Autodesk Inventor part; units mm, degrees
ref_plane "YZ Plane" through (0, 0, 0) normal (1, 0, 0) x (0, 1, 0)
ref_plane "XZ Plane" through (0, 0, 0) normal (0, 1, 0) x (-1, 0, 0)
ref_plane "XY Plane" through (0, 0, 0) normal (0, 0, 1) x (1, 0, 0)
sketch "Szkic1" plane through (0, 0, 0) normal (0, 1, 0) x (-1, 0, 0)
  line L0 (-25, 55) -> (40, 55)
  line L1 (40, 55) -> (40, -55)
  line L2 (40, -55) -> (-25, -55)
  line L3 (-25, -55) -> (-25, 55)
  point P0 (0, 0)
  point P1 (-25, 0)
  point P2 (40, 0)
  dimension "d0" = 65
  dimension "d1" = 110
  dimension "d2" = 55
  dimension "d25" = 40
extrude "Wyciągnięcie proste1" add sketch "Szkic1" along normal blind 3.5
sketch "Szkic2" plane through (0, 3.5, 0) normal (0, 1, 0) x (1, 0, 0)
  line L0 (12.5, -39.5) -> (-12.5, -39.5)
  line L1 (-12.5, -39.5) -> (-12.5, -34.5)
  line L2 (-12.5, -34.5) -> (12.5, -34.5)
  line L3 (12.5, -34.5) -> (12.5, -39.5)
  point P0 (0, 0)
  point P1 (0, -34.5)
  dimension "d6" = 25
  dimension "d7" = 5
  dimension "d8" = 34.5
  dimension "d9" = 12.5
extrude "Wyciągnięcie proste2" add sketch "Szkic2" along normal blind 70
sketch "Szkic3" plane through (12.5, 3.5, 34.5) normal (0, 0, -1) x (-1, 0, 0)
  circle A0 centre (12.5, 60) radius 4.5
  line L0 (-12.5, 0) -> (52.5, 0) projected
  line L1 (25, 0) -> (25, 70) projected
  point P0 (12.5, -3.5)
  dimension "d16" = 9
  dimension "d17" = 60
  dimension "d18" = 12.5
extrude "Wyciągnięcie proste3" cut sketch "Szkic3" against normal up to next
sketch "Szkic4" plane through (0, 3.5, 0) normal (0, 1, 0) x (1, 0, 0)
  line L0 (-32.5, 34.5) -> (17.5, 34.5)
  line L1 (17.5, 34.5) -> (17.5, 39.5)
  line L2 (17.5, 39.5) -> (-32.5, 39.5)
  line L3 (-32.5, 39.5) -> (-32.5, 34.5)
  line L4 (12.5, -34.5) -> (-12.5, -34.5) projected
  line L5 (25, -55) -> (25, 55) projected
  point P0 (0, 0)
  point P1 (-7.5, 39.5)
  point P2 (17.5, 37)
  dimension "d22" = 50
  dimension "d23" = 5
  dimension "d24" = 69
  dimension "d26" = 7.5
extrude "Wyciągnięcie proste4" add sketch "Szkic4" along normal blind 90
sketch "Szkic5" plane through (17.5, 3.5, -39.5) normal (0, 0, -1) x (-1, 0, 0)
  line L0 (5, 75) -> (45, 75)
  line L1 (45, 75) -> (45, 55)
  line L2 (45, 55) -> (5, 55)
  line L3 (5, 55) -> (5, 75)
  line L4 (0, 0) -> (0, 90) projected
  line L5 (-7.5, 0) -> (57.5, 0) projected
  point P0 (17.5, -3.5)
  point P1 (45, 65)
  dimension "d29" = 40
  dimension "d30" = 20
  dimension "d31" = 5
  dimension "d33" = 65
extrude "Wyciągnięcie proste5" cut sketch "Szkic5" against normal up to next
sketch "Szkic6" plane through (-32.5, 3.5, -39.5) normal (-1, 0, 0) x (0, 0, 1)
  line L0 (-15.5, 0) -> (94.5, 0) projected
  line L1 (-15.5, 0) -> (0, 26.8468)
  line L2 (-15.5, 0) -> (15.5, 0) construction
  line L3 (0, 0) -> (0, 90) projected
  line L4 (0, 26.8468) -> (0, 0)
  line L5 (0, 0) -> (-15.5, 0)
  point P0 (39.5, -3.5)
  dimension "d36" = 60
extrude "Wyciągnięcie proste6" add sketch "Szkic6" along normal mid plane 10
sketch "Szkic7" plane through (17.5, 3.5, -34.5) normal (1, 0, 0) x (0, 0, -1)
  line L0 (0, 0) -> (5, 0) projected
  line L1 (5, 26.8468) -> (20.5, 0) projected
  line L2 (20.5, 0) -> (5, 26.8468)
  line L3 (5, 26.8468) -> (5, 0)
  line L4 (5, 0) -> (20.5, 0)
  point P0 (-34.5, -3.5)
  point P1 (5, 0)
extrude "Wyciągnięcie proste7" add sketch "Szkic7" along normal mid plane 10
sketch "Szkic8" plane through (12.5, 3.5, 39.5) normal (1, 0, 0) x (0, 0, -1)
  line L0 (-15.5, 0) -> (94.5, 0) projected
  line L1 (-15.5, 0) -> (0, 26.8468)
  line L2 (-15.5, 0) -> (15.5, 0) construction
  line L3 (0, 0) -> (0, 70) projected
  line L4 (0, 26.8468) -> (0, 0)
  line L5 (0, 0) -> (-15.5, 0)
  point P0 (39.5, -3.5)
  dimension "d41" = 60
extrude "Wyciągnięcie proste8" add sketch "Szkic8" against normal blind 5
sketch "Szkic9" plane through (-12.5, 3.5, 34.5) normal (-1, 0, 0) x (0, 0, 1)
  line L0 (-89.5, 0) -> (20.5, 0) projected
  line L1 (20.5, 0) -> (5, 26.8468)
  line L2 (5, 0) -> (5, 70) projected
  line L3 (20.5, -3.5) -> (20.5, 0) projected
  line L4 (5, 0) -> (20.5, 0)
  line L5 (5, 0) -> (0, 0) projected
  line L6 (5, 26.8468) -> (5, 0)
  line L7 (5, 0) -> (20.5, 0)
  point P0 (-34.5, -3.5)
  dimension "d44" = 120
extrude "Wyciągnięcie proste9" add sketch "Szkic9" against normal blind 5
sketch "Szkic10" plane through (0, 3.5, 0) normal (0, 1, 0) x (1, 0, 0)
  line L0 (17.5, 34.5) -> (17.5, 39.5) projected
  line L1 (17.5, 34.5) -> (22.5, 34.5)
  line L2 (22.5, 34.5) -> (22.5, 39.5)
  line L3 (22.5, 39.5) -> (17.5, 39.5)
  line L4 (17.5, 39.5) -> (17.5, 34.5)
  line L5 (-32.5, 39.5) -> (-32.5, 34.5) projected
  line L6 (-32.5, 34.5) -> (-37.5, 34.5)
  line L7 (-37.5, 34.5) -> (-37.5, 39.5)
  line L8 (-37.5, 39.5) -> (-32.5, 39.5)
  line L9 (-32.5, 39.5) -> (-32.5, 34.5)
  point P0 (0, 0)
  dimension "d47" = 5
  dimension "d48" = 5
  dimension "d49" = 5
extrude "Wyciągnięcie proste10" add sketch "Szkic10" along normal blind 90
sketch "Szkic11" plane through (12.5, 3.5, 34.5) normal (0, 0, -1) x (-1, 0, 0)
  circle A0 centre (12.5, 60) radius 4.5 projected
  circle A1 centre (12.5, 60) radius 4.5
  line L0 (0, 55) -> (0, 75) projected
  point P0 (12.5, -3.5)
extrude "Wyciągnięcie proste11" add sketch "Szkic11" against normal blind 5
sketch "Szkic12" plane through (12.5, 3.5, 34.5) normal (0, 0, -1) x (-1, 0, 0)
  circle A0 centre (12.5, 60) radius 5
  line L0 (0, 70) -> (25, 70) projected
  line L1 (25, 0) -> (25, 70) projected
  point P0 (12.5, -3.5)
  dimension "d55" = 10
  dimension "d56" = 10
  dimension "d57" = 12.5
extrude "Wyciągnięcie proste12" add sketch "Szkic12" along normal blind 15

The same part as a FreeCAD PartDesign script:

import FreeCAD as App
import Part
import Sketcher

V = App.Vector
Q = App.Units.Quantity


def add_polygon(sketch, points):
    """Adds a closed chain of lines whose ends are joined by coincident constraints."""
    first, n = sketch.GeometryCount, len(points)
    for a, b in zip(points, points[1:] + points[:1]):
        sketch.addGeometry(Part.LineSegment(App.Vector(*a, 0), App.Vector(*b, 0)), False)
    for i in range(n):
        sketch.addConstraint(Sketcher.Constraint("Coincident", first + i, 2, first + (i + 1) % n, 1))

doc = App.newDocument("Part")
body = doc.addObject("PartDesign::Body", "Body")

# Sketch on XZ plane
sketch1 = doc.addObject("Sketcher::SketchObject", "Sketch")
body.addObject(sketch1)
sketch1.AttachmentSupport = (doc.XZ_Plane, [""])
sketch1.MapMode = "FlatFace"
add_polygon(sketch1, [(-40, 55), (25, 55), (25, -55), (-40, -55)])  # lines 0-3
sketch1.addConstraint([
    Sketcher.Constraint("Horizontal", 0),
    Sketcher.Constraint("Vertical", 1),
    Sketcher.Constraint("Horizontal", 2),
    Sketcher.Constraint("Vertical", 3),
    Sketcher.Constraint("DistanceX", 0, 1, 0, 2, 65.0),
    Sketcher.Constraint("DistanceY", 1, 2, 1, 1, 110.0),
    Sketcher.Constraint("DistanceY", -1, 1, 0, 2, 55.0),
    Sketcher.Constraint("DistanceX", 2, 2, -1, 1, 40.0),
])
pad1 = doc.addObject("PartDesign::Pad", "Pad")
body.addObject(pad1)
pad1.Profile = sketch1
pad1.Length = 3.5
pad1.Reversed = True

# Sketch on XZ plane
sketch2 = doc.addObject("Sketcher::SketchObject", "Sketch001")
body.addObject(sketch2)
sketch2.AttachmentSupport = (doc.XZ_Plane, [""])
sketch2.MapMode = "FlatFace"
sketch2.AttachmentOffset = App.Placement(V(0, 0, -3.5), App.Rotation())
add_polygon(sketch2, [(-12, 40), (12, 40), (12, 34), (-12, 34)])  # lines 0-3
sketch2.addConstraint([
    Sketcher.Constraint("Horizontal", 0),
    Sketcher.Constraint("Vertical", 1),
    Sketcher.Constraint("Horizontal", 2),
    Sketcher.Constraint("Vertical", 3),
    Sketcher.Constraint("DistanceX", 0, 1, 0, 2, 25.0),
    Sketcher.Constraint("DistanceY", 1, 2, 1, 1, 5.0),
    Sketcher.Constraint("DistanceX", -1, 1, 0, 2, 12.5),
    Sketcher.Constraint("DistanceY", -1, 1, 1, 2, 34.5),
])
pad2 = doc.addObject("PartDesign::Pad", "Pad001")
body.addObject(pad2)
pad2.Profile = sketch2
pad2.Length = 70
pad2.Reversed = True

# Sketch on XY plane
sketch3 = doc.addObject("Sketcher::SketchObject", "Sketch002")
body.addObject(sketch3)
sketch3.AttachmentSupport = (doc.XY_Plane, [""])
sketch3.MapMode = "FlatFace"
sketch3.AttachmentOffset = App.Placement(V(0, 0, 34.5), App.Rotation())
sketch3.addGeometry(Part.Circle(V(0, 63.5, 0), V(0, 0, 1), 4.5), False)
sketch3.addConstraint([
    Sketcher.Constraint("PointOnObject", 0, 3, -2),
    Sketcher.Constraint("Diameter", 0, 9.0),
    Sketcher.Constraint("DistanceY", -1, 1, 0, 3, 63.5),
])
pocket1 = doc.addObject("PartDesign::Pocket", "Pocket")
body.addObject(pocket1)
pocket1.Profile = sketch3
pocket1.Type = "UpToFirst"
pocket1.Reversed = True

# Sketch on XZ plane
sketch4 = doc.addObject("Sketcher::SketchObject", "Sketch003")
body.addObject(sketch4)
sketch4.AttachmentSupport = (doc.XZ_Plane, [""])
sketch4.MapMode = "FlatFace"
sketch4.AttachmentOffset = App.Placement(V(0, 0, -3.5), App.Rotation())
add_polygon(sketch4, [(-32, -40), (-32, -34), (18, -34), (18, -40)])  # lines 0-3
sketch4.addConstraint([
    Sketcher.Constraint("Vertical", 0),
    Sketcher.Constraint("Horizontal", 1),
    Sketcher.Constraint("Vertical", 2),
    Sketcher.Constraint("Horizontal", 3),
    Sketcher.Constraint("DistanceX", 1, 1, 1, 2, 50.0),
    Sketcher.Constraint("DistanceY", 0, 1, 0, 2, 5.0),
    Sketcher.Constraint("DistanceX", 0, 2, -1, 1, 32.5),
    Sketcher.Constraint("DistanceY", 0, 2, -1, 1, 34.5),
])
pad3 = doc.addObject("PartDesign::Pad", "Pad002")
body.addObject(pad3)
pad3.Profile = sketch4
pad3.Length = 90
pad3.Reversed = True

# Sketch on XY plane
sketch5 = doc.addObject("Sketcher::SketchObject", "Sketch004")
body.addObject(sketch5)
sketch5.AttachmentSupport = (doc.XY_Plane, [""])
sketch5.MapMode = "FlatFace"
sketch5.AttachmentOffset = App.Placement(V(0, 0, -39.5), App.Rotation())
add_polygon(sketch5, [(-28, 78), (12, 78), (12, 58), (-28, 58)])  # lines 0-3
sketch5.addConstraint([
    Sketcher.Constraint("Horizontal", 0),
    Sketcher.Constraint("Vertical", 1),
    Sketcher.Constraint("Horizontal", 2),
    Sketcher.Constraint("Vertical", 3),
    Sketcher.Constraint("DistanceX", 0, 1, 0, 2, 40.0),
    Sketcher.Constraint("DistanceY", 1, 2, 1, 1, 20.0),
    Sketcher.Constraint("DistanceX", -1, 1, 0, 2, 12.5),
    Sketcher.Constraint("DistanceY", -1, 1, 0, 2, 78.5),
])
pocket2 = doc.addObject("PartDesign::Pocket", "Pocket001")
body.addObject(pocket2)
pocket2.Profile = sketch5
pocket2.Type = "UpToFirst"
pocket2.Reversed = True

# Sketch on YZ plane
sketch6 = doc.addObject("Sketcher::SketchObject", "Sketch005")
body.addObject(sketch6)
sketch6.AttachmentSupport = (doc.YZ_Plane, [""])
sketch6.MapMode = "FlatFace"
sketch6.AttachmentOffset = App.Placement(V(0, 0, -32.5), App.Rotation())
add_polygon(sketch6, [(30, -40), (4, -55), (4, -40)])  # lines 0-2
sketch6.addConstraint([
    Sketcher.Constraint("Vertical", 1),
    Sketcher.Constraint("Horizontal", 2),
    Sketcher.Constraint("Angle", 0, Q("-150 deg")),
    Sketcher.Constraint("Distance", 0, 31.0),
    Sketcher.Constraint("DistanceY", 0, 2, -1, 1, 55.0),
    Sketcher.Constraint("DistanceX", -1, 1, 0, 2, 3.5),
])
pad4 = doc.addObject("PartDesign::Pad", "Pad003")
body.addObject(pad4)
pad4.Profile = sketch6
pad4.Length = 10
pad4.Midplane = True

# Sketch on YZ plane
sketch7 = doc.addObject("Sketcher::SketchObject", "Sketch006")
body.addObject(sketch7)
sketch7.AttachmentSupport = (doc.YZ_Plane, [""])
sketch7.MapMode = "FlatFace"
sketch7.AttachmentOffset = App.Placement(V(0, 0, 17.5), App.Rotation())
add_polygon(sketch7, [(4, -55), (30, -40), (4, -40)])  # lines 0-2
sketch7.addConstraint([
    Sketcher.Constraint("Horizontal", 1),
    Sketcher.Constraint("Vertical", 2),
    Sketcher.Constraint("Angle", 0, Q("30 deg")),
    Sketcher.Constraint("Distance", 0, 31.0),
    Sketcher.Constraint("DistanceY", 2, 2, -1, 1, 55.0),
    Sketcher.Constraint("DistanceX", -1, 1, 1, 2, 3.5),
])
pad5 = doc.addObject("PartDesign::Pad", "Pad004")
body.addObject(pad5)
pad5.Profile = sketch7
pad5.Length = 10
pad5.Midplane = True

# Sketch on YZ plane
sketch8 = doc.addObject("Sketcher::SketchObject", "Sketch007")
body.addObject(sketch8)
sketch8.AttachmentSupport = (doc.YZ_Plane, [""])
sketch8.MapMode = "FlatFace"
sketch8.AttachmentOffset = App.Placement(V(0, 0, 12.5), App.Rotation())
add_polygon(sketch8, [(30, 40), (4, 55), (4, 40)])  # lines 0-2
sketch8.addConstraint([
    Sketcher.Constraint("Vertical", 1),
    Sketcher.Constraint("Horizontal", 2),
    Sketcher.Constraint("Angle", 0, Q("150 deg")),
    Sketcher.Constraint("Distance", 0, 31.0),
    Sketcher.Constraint("DistanceY", -1, 1, 0, 2, 55.0),
    Sketcher.Constraint("DistanceX", -1, 1, 0, 2, 3.5),
])
pad6 = doc.addObject("PartDesign::Pad", "Pad005")
body.addObject(pad6)
pad6.Profile = sketch8
pad6.Length = 5
pad6.Reversed = True

# Sketch on YZ plane
sketch9 = doc.addObject("Sketcher::SketchObject", "Sketch008")
body.addObject(sketch9)
sketch9.AttachmentSupport = (doc.YZ_Plane, [""])
sketch9.MapMode = "FlatFace"
sketch9.AttachmentOffset = App.Placement(V(0, 0, -12.5), App.Rotation())
add_polygon(sketch9, [(30, 40), (4, 40), (4, 55)])  # lines 0-2
sketch9.addConstraint([
    Sketcher.Constraint("Horizontal", 0),
    Sketcher.Constraint("Vertical", 1),
    Sketcher.Constraint("Angle", 2, Q("-30 deg")),
    Sketcher.Constraint("Distance", 2, 31.0),
    Sketcher.Constraint("DistanceY", -1, 1, 1, 2, 55.0),
    Sketcher.Constraint("DistanceX", -1, 1, 0, 2, 3.5),
])
pad7 = doc.addObject("PartDesign::Pad", "Pad006")
body.addObject(pad7)
pad7.Profile = sketch9
pad7.Length = 5

# Sketch on XZ plane
sketch10 = doc.addObject("Sketcher::SketchObject", "Sketch009")
body.addObject(sketch10)
sketch10.AttachmentSupport = (doc.XZ_Plane, [""])
sketch10.MapMode = "FlatFace"
sketch10.AttachmentOffset = App.Placement(V(0, 0, -3.5), App.Rotation())
add_polygon(sketch10, [(18, -40), (18, -34), (22, -34), (22, -40)])  # lines 0-3
add_polygon(sketch10, [(-32, -34), (-32, -40), (-38, -40), (-38, -34)])  # lines 4-7
sketch10.addConstraint([
    Sketcher.Constraint("Vertical", 0),
    Sketcher.Constraint("Horizontal", 1),
    Sketcher.Constraint("Vertical", 2),
    Sketcher.Constraint("Horizontal", 3),
    Sketcher.Constraint("Vertical", 4),
    Sketcher.Constraint("Horizontal", 5),
    Sketcher.Constraint("Vertical", 6),
    Sketcher.Constraint("Horizontal", 7),
    Sketcher.Constraint("Horizontal", 3, 2, 4, 2),
    Sketcher.Constraint("Horizontal", 1, 2, 6, 2),
    Sketcher.Constraint("Equal", 3, 5),
    Sketcher.Constraint("Equal", 7, 0),
    Sketcher.Constraint("DistanceX", 1, 1, 1, 2, 5.0),
    Sketcher.Constraint("DistanceX", 4, 2, 3, 2, 50.0),
    Sketcher.Constraint("DistanceX", -1, 1, 0, 2, 17.5),
    Sketcher.Constraint("DistanceY", 0, 2, -1, 1, 34.5),
])
pad8 = doc.addObject("PartDesign::Pad", "Pad007")
body.addObject(pad8)
pad8.Profile = sketch10
pad8.Length = 90
pad8.Reversed = True

# Sketch on XY plane
sketch11 = doc.addObject("Sketcher::SketchObject", "Sketch010")
body.addObject(sketch11)
sketch11.AttachmentSupport = (doc.XY_Plane, [""])
sketch11.MapMode = "FlatFace"
sketch11.AttachmentOffset = App.Placement(V(0, 0, 34.5), App.Rotation())
sketch11.addGeometry(Part.Circle(V(0, 63.5, 0), V(0, 0, 1), 4.5), False)
sketch11.addConstraint([
    Sketcher.Constraint("PointOnObject", 0, 3, -2),
    Sketcher.Constraint("Diameter", 0, 9.0),
    Sketcher.Constraint("DistanceY", -1, 1, 0, 3, 63.5),
])
pad9 = doc.addObject("PartDesign::Pad", "Pad008")
body.addObject(pad9)
pad9.Profile = sketch11
pad9.Length = 5

# Sketch on XY plane
sketch12 = doc.addObject("Sketcher::SketchObject", "Sketch011")
body.addObject(sketch12)
sketch12.AttachmentSupport = (doc.XY_Plane, [""])
sketch12.MapMode = "FlatFace"
sketch12.AttachmentOffset = App.Placement(V(0, 0, 34.5), App.Rotation())
sketch12.addGeometry(Part.Circle(V(0, 64, 0), V(0, 0, 1), 5), False)
sketch12.addConstraint([
    Sketcher.Constraint("PointOnObject", 0, 3, -2),
    Sketcher.Constraint("Diameter", 0, 10.0),
    Sketcher.Constraint("DistanceY", -1, 1, 0, 3, 63.5),
])
pad10 = doc.addObject("PartDesign::Pad", "Pad009")
body.addObject(pad10)
pad10.Profile = sketch12
pad10.Length = 15
pad10.Reversed = True

doc.recompute()
